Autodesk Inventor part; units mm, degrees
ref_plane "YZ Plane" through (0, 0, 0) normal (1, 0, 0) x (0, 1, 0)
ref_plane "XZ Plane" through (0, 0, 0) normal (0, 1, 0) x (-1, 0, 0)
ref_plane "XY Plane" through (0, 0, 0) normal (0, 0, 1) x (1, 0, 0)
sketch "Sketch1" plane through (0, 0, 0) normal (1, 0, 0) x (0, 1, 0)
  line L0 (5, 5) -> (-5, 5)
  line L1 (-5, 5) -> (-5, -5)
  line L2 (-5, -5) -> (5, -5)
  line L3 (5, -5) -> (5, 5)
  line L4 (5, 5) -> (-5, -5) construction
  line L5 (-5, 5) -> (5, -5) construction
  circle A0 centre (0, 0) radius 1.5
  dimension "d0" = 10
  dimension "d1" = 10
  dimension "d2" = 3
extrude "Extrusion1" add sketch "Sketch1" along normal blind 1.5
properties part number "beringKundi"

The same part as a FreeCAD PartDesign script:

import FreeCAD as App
import Part
import Sketcher

V = App.Vector


def add_polygon(sketch, points):
    """Adds a closed chain of lines whose ends are joined by coincident constraints."""
    first, n = sketch.GeometryCount, len(points)
    for a, b in zip(points, points[1:] + points[:1]):
        sketch.addGeometry(Part.LineSegment(App.Vector(*a, 0), App.Vector(*b, 0)), False)
    for i in range(n):
        sketch.addConstraint(Sketcher.Constraint("Coincident", first + i, 2, first + (i + 1) % n, 1))

doc = App.newDocument("Part")
body = doc.addObject("PartDesign::Body", "Body")

# Sketch on YZ plane
sketch1 = body.newObject("Sketcher::SketchObject", "Sketch")
sketch1.AttachmentSupport = (doc.getObject("YZ_Plane"), [""])
sketch1.MapMode = "FlatFace"
add_polygon(sketch1, [(5, -5), (5, 5), (-5, 5), (-5, -5)])  # lines 0-3
sketch1.addGeometry(Part.Circle(V(0, 0, 0), V(0, 0, 1), 1.5), False)  # 4
sketch1.addConstraint(Sketcher.Constraint("Vertical", 0))
sketch1.addConstraint(Sketcher.Constraint("Horizontal", 1))
sketch1.addConstraint(Sketcher.Constraint("Vertical", 2))
sketch1.addConstraint(Sketcher.Constraint("Horizontal", 3))
sketch1.addConstraint(Sketcher.Constraint("Coincident", 4, 3, -1, 1))
sketch1.addConstraint(Sketcher.Constraint("Symmetric", 0, 2, 2, 2, -1, 1))
sketch1.addConstraint(Sketcher.Constraint("Equal", 3, 0))
sketch1.addConstraint(Sketcher.Constraint("Diameter", 4, 3.0))
sketch1.addConstraint(Sketcher.Constraint("DistanceX", 1, 2, 1, 1, 10.0))
pad1 = body.newObject("PartDesign::Pad", "Pad")
pad1.Profile = sketch1
pad1.Length = 1.5

doc.recompute()
